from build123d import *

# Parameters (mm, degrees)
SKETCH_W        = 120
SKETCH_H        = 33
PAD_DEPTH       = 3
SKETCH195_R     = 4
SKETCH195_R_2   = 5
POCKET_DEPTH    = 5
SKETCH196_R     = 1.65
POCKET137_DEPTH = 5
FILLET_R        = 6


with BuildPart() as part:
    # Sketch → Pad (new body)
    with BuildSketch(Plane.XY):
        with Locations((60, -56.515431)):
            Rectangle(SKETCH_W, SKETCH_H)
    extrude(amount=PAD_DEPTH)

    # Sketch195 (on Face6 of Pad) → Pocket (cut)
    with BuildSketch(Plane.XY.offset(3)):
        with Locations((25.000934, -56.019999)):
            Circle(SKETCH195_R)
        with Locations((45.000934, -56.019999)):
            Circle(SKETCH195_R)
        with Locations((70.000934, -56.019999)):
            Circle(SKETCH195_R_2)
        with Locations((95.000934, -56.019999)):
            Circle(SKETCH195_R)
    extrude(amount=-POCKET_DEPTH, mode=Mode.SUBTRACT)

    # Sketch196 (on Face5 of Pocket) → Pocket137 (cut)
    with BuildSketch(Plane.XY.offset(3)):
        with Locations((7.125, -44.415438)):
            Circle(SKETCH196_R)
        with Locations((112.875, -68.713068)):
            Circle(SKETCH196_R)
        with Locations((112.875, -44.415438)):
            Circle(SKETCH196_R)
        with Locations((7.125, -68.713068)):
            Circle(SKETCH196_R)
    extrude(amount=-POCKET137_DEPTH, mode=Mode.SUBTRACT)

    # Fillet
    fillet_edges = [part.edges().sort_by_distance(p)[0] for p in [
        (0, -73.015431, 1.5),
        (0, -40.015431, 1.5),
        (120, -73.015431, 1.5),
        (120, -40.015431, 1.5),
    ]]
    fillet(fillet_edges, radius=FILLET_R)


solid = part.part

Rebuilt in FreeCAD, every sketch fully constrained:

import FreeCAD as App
import Part
import Sketcher


def edges_at(feature, points):
    """Names of the edges that pass closest to the given points."""
    edges = feature.Shape.Edges
    near = lambda p: min(range(len(edges)), key=lambda i: edges[i].distToShape(Part.Vertex(*p))[0])
    return sorted({f"Edge{near(p) + 1}" for p in points})

doc = App.newDocument("Part")
body = doc.addObject("PartDesign::Body", "Body")

# Sketch on XY plane
sketch1 = doc.addObject("Sketcher::SketchObject", "Sketch")
body.addObject(sketch1)
sketch1.AttachmentSupport = (doc.XY_Plane, [""])
sketch1.MapMode = "FlatFace"
sketch1.addGeometry(Part.LineSegment(App.Vector(0, -40, 0), App.Vector(0, -73, 0)), False)
sketch1.addGeometry(Part.LineSegment(App.Vector(0, -73, 0), App.Vector(120, -73, 0)), False)
sketch1.addGeometry(Part.LineSegment(App.Vector(120, -73, 0), App.Vector(120, -40, 0)), False)
sketch1.addGeometry(Part.LineSegment(App.Vector(120, -40, 0), App.Vector(0, -40, 0)), False)
sketch1.addConstraint(Sketcher.Constraint("Coincident", 0, 2, 1, 1))
sketch1.addConstraint(Sketcher.Constraint("Coincident", 1, 2, 2, 1))
sketch1.addConstraint(Sketcher.Constraint("Coincident", 2, 2, 3, 1))
sketch1.addConstraint(Sketcher.Constraint("Coincident", 3, 2, 0, 1))
sketch1.addConstraint(Sketcher.Constraint("Vertical", 0))
sketch1.addConstraint(Sketcher.Constraint("Horizontal", 1))
sketch1.addConstraint(Sketcher.Constraint("Vertical", 2))
sketch1.addConstraint(Sketcher.Constraint("Horizontal", 3))
sketch1.addConstraint(Sketcher.Constraint("PointOnObject", 0, 2, -2))
sketch1.addConstraint(Sketcher.Constraint("DistanceX", 1, 1, 1, 2, 120.0))
sketch1.addConstraint(Sketcher.Constraint("DistanceY", 0, 2, 0, 1, 33.0))
sketch1.addConstraint(Sketcher.Constraint("DistanceY", 0, 2, -1, 1, 73.015431))
pad1 = doc.addObject("PartDesign::Pad", "Pad")
body.addObject(pad1)
pad1.Profile = sketch1
pad1.Length = 3

# Sketch on XY plane
sketch2 = doc.addObject("Sketcher::SketchObject", "Sketch001")
body.addObject(sketch2)
sketch2.AttachmentSupport = (doc.XY_Plane, [""])
sketch2.MapMode = "FlatFace"
sketch2.AttachmentOffset = App.Placement(App.Vector(0, 0, 3), App.Rotation())
sketch2.addGeometry(Part.Circle(App.Vector(25, -56, 0), App.Vector(0, 0, 1), 4), False)
sketch2.addGeometry(Part.Circle(App.Vector(45, -56, 0), App.Vector(0, 0, 1), 4), False)
sketch2.addGeometry(Part.Circle(App.Vector(70, -56, 0), App.Vector(0, 0, 1), 5), False)
sketch2.addGeometry(Part.Circle(App.Vector(95, -56, 0), App.Vector(0, 0, 1), 4), False)
sketch2.addConstraint(Sketcher.Constraint("Equal", 0, 1))
sketch2.addConstraint(Sketcher.Constraint("Equal", 1, 3))
sketch2.addConstraint(Sketcher.Constraint("Horizontal", 0, 3, 1, 3))
sketch2.addConstraint(Sketcher.Constraint("Horizontal", 1, 3, 2, 3))
sketch2.addConstraint(Sketcher.Constraint("Horizontal", 2, 3, 3, 3))
sketch2.addConstraint(Sketcher.Constraint("Diameter", 0, 8.0))
sketch2.addConstraint(Sketcher.Constraint("Diameter", 2, 10.0))
sketch2.addConstraint(Sketcher.Constraint("DistanceX", 0, 3, 1, 3, 20.0))
sketch2.addConstraint(Sketcher.Constraint("DistanceX", 1, 3, 2, 3, 25.0))
sketch2.addConstraint(Sketcher.Constraint("DistanceX", 2, 3, 3, 3, 25.0))
sketch2.addConstraint(Sketcher.Constraint("DistanceY", 0, 3, -1, 1, 56.019999))
sketch2.addConstraint(Sketcher.Constraint("DistanceX", -1, 1, 0, 3, 25.000934))
pocket1 = doc.addObject("PartDesign::Pocket", "Pocket")
body.addObject(pocket1)
pocket1.Profile = sketch2
pocket1.Length = 5

# Sketch on XY plane
sketch3 = doc.addObject("Sketcher::SketchObject", "Sketch002")
body.addObject(sketch3)
sketch3.AttachmentSupport = (doc.XY_Plane, [""])
sketch3.MapMode = "FlatFace"
sketch3.AttachmentOffset = App.Placement(App.Vector(0, 0, 3), App.Rotation())
sketch3.addGeometry(Part.Circle(App.Vector(7.1, -44.4, 0), App.Vector(0, 0, 1), 1.6), False)
sketch3.addGeometry(Part.Circle(App.Vector(112.9, -68.7, 0), App.Vector(0, 0, 1), 1.6), False)
sketch3.addGeometry(Part.Circle(App.Vector(112.9, -44.4, 0), App.Vector(0, 0, 1), 1.6), False)
sketch3.addGeometry(Part.Circle(App.Vector(7.1, -68.7, 0), App.Vector(0, 0, 1), 1.6), False)
sketch3.addConstraint(Sketcher.Constraint("Equal", 0, 1))
sketch3.addConstraint(Sketcher.Constraint("Equal", 1, 2))
sketch3.addConstraint(Sketcher.Constraint("Equal", 2, 3))
sketch3.addConstraint(Sketcher.Constraint("Horizontal", 0, 3, 2, 3))
sketch3.addConstraint(Sketcher.Constraint("Horizontal", 1, 3, 3, 3))
sketch3.addConstraint(Sketcher.Constraint("Vertical", 1, 3, 2, 3))
sketch3.addConstraint(Sketcher.Constraint("Vertical", 0, 3, 3, 3))
sketch3.addConstraint(Sketcher.Constraint("Diameter", 0, 3.3))
sketch3.addConstraint(Sketcher.Constraint("DistanceX", 0, 3, 1, 3, 105.75))
sketch3.addConstraint(Sketcher.Constraint("DistanceX", -1, 1, 0, 3, 7.125))
sketch3.addConstraint(Sketcher.Constraint("DistanceY", 0, 3, -1, 1, 44.415438))
sketch3.addConstraint(Sketcher.Constraint("DistanceY", 1, 3, -1, 1, 68.713068))
pocket2 = doc.addObject("PartDesign::Pocket", "Pocket001")
body.addObject(pocket2)
pocket2.Profile = sketch3
pocket2.Length = 5
doc.recompute()

fillet = doc.addObject("PartDesign::Fillet", "Fillet")
body.addObject(fillet)
fillet.Base = (pocket2, edges_at(pocket2, [
    (0, -73.015, 1.5),
    (0, -40.015, 1.5),
    (120, -73.015, 1.5),
    (120, -40.015, 1.5),
]))
fillet.Radius = 6

doc.recompute()
